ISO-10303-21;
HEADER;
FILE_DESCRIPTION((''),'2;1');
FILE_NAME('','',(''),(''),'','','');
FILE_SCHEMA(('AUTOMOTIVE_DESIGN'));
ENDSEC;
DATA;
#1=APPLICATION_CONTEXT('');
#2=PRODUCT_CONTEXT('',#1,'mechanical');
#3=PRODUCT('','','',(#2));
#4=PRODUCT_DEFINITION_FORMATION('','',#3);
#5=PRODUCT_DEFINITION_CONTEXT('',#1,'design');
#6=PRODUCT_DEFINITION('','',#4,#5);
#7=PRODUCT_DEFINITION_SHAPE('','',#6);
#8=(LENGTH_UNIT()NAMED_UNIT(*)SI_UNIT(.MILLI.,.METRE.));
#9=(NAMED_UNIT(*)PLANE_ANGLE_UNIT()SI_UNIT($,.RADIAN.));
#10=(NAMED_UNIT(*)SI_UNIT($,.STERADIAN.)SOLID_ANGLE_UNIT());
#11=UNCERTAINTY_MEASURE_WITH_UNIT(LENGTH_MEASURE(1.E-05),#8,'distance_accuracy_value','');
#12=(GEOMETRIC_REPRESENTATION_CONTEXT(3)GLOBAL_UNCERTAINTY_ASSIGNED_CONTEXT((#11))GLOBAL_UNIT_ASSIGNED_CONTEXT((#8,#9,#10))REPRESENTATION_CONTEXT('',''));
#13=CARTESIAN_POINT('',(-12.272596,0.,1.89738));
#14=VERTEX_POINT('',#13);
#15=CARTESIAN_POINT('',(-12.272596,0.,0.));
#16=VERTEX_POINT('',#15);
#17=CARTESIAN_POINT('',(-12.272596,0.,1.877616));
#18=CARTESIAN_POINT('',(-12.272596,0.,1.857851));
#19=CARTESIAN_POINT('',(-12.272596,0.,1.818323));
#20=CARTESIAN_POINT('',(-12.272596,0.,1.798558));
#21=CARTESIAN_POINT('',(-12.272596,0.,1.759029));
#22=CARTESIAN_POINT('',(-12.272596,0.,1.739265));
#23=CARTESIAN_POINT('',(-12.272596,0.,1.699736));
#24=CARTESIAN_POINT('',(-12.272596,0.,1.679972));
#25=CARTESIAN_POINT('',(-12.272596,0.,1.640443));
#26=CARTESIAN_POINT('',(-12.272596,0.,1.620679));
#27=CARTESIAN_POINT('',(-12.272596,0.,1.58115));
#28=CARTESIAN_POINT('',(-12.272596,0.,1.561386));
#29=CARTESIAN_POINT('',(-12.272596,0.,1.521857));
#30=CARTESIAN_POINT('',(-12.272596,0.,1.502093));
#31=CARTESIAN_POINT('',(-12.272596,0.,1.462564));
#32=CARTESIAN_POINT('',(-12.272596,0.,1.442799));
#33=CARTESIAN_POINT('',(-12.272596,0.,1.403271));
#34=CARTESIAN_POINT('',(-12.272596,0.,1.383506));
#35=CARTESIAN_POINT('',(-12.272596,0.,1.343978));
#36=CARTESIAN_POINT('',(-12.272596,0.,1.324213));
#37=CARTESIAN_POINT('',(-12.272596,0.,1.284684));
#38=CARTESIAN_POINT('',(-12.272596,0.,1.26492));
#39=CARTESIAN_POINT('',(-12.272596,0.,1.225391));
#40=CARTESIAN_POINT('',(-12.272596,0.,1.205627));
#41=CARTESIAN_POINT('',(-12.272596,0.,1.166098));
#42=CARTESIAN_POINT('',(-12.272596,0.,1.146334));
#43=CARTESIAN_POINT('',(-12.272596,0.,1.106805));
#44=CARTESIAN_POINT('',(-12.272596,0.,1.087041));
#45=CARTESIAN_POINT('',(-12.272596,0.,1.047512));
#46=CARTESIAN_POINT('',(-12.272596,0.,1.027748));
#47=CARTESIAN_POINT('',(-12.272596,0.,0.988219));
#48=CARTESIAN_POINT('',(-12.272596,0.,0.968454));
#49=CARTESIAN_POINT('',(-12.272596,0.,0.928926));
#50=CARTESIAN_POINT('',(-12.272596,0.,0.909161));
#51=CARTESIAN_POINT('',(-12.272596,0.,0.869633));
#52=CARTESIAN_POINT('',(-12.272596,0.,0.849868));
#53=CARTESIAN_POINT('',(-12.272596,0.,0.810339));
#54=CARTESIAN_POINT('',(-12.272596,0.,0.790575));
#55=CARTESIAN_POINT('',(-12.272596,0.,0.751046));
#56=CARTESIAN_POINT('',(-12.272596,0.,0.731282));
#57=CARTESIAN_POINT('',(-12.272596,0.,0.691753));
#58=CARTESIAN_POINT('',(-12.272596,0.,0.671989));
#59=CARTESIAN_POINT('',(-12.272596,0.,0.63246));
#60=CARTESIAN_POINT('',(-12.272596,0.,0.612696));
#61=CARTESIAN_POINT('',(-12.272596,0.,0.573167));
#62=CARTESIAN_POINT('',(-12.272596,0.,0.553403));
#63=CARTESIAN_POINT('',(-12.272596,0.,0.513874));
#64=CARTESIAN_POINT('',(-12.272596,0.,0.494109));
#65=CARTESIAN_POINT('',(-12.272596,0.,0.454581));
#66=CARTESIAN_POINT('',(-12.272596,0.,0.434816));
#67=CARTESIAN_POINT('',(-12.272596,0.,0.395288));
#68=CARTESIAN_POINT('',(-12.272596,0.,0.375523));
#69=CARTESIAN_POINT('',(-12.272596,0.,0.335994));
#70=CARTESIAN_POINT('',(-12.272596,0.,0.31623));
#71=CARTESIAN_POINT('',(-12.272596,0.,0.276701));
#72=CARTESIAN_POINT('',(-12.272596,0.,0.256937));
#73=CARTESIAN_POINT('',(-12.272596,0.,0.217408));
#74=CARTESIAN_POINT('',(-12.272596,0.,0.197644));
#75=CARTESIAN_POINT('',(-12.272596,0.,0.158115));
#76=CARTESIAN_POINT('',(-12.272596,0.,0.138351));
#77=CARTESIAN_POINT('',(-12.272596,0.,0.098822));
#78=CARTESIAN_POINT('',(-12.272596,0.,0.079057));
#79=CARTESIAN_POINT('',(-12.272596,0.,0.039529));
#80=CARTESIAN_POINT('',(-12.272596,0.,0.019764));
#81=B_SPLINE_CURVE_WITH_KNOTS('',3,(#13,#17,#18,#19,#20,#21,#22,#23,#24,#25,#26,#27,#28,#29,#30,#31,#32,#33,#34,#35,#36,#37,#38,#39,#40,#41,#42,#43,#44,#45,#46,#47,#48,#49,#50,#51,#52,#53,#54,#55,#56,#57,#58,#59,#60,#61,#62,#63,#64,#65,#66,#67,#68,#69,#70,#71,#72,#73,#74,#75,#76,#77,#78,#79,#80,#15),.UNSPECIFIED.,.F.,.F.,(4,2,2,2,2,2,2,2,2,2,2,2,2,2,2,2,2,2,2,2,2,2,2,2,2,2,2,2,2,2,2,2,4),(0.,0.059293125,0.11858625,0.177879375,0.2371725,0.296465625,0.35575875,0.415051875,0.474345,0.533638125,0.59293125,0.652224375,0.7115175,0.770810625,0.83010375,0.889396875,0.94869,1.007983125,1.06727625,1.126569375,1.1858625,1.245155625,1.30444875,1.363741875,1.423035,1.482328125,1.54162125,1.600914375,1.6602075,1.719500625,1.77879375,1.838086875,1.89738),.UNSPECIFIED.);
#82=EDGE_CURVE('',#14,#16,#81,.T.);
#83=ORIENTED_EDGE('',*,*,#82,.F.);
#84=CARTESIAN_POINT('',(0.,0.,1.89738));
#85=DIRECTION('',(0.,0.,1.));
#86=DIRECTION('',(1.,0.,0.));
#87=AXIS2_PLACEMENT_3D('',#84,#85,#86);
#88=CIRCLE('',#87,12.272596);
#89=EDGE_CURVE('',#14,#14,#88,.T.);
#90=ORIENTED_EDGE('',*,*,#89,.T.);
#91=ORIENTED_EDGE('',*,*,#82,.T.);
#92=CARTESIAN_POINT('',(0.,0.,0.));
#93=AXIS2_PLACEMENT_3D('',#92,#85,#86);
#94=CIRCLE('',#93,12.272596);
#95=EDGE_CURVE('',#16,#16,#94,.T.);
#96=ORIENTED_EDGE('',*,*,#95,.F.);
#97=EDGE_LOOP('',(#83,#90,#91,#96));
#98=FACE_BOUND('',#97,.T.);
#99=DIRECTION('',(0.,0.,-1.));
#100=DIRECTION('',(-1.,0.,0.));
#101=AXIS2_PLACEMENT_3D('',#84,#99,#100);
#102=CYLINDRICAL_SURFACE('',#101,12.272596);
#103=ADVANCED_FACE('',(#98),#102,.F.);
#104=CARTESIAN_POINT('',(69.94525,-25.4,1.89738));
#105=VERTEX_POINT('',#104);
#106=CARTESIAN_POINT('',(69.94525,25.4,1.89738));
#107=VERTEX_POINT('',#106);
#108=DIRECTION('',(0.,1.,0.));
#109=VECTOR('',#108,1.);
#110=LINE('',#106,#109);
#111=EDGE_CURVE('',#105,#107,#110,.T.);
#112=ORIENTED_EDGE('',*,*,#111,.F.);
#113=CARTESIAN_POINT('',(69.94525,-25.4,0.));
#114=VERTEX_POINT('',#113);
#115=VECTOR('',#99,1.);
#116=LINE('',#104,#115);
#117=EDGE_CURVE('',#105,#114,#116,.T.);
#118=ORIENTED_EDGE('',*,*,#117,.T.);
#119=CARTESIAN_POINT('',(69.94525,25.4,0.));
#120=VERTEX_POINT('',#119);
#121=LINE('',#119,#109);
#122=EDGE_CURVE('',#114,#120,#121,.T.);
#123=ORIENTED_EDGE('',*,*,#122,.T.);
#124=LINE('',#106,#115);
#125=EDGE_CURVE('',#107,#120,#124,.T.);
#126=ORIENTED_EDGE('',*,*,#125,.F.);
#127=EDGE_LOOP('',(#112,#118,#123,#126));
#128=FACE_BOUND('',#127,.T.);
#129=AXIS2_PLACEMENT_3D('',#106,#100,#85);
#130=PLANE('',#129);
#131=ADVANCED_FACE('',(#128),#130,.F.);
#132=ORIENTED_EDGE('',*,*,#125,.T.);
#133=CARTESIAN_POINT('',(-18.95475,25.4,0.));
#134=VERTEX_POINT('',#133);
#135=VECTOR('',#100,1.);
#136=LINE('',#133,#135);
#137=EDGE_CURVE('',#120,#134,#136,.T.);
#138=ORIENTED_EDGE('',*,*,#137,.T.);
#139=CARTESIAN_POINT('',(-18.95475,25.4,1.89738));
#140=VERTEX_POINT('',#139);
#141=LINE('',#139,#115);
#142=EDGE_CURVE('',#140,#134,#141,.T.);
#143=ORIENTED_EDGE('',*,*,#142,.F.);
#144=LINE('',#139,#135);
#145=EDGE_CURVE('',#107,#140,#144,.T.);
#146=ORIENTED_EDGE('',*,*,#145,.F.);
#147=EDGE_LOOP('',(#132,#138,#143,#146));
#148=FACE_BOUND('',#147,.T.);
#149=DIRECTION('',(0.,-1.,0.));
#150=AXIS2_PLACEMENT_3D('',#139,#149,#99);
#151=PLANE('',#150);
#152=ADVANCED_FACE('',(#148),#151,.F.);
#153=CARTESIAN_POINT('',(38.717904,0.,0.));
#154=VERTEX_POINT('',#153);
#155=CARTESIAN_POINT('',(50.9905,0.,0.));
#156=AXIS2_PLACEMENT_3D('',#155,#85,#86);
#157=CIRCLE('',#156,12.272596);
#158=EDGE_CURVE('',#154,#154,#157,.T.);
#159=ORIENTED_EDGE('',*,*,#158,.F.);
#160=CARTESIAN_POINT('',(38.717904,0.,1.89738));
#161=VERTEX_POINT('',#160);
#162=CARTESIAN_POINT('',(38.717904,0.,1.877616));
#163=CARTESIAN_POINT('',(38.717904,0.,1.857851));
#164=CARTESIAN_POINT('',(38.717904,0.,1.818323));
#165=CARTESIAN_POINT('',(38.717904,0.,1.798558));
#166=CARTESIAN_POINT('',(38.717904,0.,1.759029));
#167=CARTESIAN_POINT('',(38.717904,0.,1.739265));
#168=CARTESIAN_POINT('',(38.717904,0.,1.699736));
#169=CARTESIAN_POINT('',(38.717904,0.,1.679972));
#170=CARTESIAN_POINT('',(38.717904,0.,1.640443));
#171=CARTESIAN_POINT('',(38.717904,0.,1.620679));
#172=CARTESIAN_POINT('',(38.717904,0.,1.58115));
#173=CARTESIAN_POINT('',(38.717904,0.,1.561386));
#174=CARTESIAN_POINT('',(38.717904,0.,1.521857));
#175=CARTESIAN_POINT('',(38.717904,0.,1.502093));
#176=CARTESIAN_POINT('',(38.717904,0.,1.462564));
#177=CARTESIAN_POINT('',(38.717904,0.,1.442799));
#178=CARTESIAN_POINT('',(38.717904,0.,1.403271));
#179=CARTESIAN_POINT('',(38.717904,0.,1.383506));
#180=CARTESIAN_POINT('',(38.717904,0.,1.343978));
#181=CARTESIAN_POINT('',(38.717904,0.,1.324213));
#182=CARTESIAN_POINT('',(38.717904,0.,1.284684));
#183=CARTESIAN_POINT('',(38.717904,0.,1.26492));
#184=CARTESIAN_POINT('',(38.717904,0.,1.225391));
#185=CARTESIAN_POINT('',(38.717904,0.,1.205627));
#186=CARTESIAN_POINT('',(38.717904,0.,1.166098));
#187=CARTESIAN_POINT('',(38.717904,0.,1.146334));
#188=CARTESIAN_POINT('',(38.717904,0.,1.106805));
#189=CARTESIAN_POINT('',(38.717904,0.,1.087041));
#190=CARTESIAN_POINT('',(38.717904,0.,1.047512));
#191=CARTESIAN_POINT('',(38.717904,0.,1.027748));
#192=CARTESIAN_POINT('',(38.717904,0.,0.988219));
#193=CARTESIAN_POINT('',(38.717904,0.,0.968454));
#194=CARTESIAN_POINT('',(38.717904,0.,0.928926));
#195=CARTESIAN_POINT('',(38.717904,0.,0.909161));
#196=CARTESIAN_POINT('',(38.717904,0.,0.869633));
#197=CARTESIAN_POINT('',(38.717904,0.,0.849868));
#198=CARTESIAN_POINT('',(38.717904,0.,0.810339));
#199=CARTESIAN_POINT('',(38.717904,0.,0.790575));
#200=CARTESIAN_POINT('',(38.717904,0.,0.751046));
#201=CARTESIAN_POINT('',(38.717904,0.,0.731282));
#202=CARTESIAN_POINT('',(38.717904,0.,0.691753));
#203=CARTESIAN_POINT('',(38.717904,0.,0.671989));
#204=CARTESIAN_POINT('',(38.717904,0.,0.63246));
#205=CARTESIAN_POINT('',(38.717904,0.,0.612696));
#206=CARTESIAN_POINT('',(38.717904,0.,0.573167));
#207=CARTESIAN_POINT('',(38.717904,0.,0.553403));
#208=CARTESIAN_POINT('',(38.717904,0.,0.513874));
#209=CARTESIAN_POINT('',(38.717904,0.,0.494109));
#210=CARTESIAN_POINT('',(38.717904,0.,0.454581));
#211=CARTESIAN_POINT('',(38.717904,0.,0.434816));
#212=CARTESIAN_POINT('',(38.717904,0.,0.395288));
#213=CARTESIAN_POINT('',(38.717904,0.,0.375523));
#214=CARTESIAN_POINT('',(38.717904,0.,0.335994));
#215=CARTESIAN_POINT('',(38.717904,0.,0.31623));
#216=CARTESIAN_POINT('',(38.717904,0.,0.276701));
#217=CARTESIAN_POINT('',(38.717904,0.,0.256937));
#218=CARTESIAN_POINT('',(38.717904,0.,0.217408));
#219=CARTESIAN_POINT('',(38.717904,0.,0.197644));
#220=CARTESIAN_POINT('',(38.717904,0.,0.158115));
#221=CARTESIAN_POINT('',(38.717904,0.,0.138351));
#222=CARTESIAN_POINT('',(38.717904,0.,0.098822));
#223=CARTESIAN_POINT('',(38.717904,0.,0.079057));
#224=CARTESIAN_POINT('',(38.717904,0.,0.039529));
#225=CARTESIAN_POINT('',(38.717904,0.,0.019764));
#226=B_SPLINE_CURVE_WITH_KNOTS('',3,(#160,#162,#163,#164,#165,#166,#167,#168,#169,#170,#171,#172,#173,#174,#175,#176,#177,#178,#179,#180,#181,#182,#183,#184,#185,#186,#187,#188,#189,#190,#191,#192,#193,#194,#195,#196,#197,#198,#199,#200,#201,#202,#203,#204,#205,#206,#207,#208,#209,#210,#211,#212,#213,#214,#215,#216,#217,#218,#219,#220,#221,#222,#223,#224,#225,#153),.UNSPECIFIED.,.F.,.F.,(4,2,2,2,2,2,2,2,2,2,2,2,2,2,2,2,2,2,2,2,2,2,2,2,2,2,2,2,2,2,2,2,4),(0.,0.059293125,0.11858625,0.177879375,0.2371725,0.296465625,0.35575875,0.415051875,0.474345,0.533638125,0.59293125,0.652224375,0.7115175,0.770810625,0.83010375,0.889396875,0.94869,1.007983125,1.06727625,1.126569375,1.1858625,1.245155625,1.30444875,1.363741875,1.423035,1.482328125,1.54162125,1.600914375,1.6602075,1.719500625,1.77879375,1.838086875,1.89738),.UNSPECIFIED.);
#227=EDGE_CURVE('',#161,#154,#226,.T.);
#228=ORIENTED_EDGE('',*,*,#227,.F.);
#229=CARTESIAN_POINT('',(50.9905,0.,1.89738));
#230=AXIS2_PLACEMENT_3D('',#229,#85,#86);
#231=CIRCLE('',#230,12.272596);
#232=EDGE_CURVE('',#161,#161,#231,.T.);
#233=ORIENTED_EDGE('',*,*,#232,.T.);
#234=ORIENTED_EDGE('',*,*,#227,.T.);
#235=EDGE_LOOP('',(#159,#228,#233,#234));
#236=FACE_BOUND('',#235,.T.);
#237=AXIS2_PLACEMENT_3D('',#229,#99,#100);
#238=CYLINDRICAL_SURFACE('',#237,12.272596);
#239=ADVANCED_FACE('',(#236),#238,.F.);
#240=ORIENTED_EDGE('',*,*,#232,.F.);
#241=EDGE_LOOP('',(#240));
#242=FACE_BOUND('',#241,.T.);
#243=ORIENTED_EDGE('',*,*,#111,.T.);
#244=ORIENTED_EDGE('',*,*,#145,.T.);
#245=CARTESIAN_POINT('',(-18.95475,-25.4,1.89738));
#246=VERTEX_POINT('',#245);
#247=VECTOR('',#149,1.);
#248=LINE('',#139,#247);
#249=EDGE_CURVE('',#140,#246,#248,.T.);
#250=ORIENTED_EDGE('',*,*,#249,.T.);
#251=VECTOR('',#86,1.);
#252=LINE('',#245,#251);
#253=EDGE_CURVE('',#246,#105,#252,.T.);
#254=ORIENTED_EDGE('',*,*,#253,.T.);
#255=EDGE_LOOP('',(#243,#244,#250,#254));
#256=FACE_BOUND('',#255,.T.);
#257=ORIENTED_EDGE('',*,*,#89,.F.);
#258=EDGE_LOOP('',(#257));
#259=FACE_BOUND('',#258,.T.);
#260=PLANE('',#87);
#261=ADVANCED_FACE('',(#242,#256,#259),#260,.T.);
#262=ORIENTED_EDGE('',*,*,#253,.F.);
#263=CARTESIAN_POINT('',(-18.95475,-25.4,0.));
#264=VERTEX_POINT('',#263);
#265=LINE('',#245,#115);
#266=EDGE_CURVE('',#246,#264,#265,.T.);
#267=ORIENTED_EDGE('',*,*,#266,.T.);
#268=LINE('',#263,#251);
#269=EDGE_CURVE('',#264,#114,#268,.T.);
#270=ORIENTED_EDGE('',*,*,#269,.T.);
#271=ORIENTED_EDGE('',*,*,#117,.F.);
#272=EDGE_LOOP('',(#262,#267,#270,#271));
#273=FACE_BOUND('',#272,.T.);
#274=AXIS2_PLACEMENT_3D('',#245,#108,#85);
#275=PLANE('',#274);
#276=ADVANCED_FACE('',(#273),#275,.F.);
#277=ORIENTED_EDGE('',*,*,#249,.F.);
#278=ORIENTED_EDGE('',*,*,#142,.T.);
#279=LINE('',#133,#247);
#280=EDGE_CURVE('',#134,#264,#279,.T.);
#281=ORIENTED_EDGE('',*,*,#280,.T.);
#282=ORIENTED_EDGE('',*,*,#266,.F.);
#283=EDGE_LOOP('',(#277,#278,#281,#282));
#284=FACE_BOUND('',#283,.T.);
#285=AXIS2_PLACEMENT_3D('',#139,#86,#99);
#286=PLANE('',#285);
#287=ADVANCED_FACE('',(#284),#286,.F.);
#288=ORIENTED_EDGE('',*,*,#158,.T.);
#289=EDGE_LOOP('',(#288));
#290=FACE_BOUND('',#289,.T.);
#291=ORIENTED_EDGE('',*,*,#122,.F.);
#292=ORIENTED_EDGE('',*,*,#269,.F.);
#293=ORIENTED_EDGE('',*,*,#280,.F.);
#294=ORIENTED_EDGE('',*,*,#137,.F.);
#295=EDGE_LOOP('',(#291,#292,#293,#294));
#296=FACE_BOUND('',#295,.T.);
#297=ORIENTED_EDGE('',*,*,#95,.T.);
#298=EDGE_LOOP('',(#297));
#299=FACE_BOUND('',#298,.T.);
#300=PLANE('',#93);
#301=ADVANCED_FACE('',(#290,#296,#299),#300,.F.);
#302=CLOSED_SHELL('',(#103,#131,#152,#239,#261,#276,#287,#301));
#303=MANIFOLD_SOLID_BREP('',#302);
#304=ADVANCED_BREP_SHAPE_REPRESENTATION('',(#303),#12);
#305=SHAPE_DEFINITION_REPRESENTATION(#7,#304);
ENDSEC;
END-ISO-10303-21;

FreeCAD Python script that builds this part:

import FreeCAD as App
import Part
import Sketcher
from FreeCAD import Vector
Q = App.Units.Quantity

doc = App.newDocument("Part")
body = doc.addObject("PartDesign::Body", "Body")

# Sketch on XY plane
sketch1 = body.newObject("Sketcher::SketchObject", "Sketch")
sketch1.AttachmentSupport = (doc.getObject("XY_Plane"), [""])
sketch1.MapMode = "FlatFace"
sketch1.addGeometry(Part.LineSegment(Vector(-18.95475, 25.4, 0), Vector(-18.95475, -25.4, 0)), False)
sketch1.addGeometry(Part.LineSegment(Vector(-18.95475, -25.4, 0), Vector(69.94525, -25.4, 0)), False)
sketch1.addGeometry(Part.LineSegment(Vector(69.94525, -25.4, 0), Vector(69.94525, 25.4, 0)), False)
sketch1.addGeometry(Part.LineSegment(Vector(69.94525, 25.4, 0), Vector(-18.95475, 25.4, 0)), False)
sketch1.addGeometry(Part.Circle(Vector(0, 0, 0), Vector(0, 0, 1), 12.272596), False)
sketch1.addGeometry(Part.Circle(Vector(50.9905, 0, 0), Vector(0, 0, 1), 12.272596), False)
sketch1.addConstraint(Sketcher.Constraint("Coincident", 0, 2, 1, 1))
sketch1.addConstraint(Sketcher.Constraint("Coincident", 1, 2, 2, 1))
sketch1.addConstraint(Sketcher.Constraint("Coincident", 2, 2, 3, 1))
sketch1.addConstraint(Sketcher.Constraint("Coincident", 3, 2, 0, 1))
sketch1.addConstraint(Sketcher.Constraint("Vertical", 0))
sketch1.addConstraint(Sketcher.Constraint("Horizontal", 1))
sketch1.addConstraint(Sketcher.Constraint("Vertical", 2))
sketch1.addConstraint(Sketcher.Constraint("Horizontal", 3))
sketch1.addConstraint(Sketcher.Constraint("Coincident", 4, 3, -1, 1))
sketch1.addConstraint(Sketcher.Constraint("Equal", 4, 5))
sketch1.addConstraint(Sketcher.Constraint("PointOnObject", 5, 3, -1))
sketch1.addConstraint(Sketcher.Constraint("DistanceY", 0, 2, 0, 1, Q("2 in")))
sketch1.addConstraint(Sketcher.Constraint("DistanceX", 1, 1, 1, 2, Q("3.5 in")))
sketch1.addConstraint(Sketcher.Constraint("DistanceY", 0, 2, -1, 1, Q("1 in")))
sketch1.addConstraint(Sketcher.Constraint("Diameter", 4, Q("24.545192 mm")))
sketch1.addConstraint(Sketcher.Constraint("DistanceX", -1, 1, 5, 3, Q("2.0075 in")))
sketch1.addConstraint(Sketcher.Constraint("DistanceX", 0, 2, -1, 1, Q("18.95475 mm")))
pad1 = body.newObject("PartDesign::Pad", "Pad")
pad1.Profile = sketch1
pad1.Length = Q("0.0747 in")

doc.recompute()
